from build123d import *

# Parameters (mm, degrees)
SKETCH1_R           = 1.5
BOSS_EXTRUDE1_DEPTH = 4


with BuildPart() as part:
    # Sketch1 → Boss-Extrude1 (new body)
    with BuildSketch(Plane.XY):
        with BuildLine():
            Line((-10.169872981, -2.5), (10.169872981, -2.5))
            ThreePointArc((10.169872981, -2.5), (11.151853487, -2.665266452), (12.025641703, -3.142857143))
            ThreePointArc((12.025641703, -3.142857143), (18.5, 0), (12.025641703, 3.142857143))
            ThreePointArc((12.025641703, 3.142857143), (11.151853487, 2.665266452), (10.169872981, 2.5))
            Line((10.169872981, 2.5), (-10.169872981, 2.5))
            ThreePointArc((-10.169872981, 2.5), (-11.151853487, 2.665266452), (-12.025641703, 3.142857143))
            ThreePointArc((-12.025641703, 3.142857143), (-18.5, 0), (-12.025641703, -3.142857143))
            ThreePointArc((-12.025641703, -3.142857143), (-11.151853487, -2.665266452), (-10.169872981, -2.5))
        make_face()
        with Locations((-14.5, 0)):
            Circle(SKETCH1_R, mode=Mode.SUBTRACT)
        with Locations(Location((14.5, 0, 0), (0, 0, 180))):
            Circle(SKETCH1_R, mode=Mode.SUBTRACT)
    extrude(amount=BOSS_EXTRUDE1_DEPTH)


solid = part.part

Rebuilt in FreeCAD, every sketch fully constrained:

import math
import FreeCAD as App
import Part
import Sketcher

V = App.Vector
Q = App.Units.Quantity

doc = App.newDocument("Part")
body = doc.addObject("PartDesign::Body", "Body")

sketch1 = body.newObject("Sketcher::SketchObject", "Sketch")
sketch1.AttachmentSupport = (doc.getObject("XY_Plane"), [""])
sketch1.MapMode = "FlatFace"
sketch1.addGeometry([
    Part.LineSegment(V(-10.2, -2.5, 0), V(10.2, -2.5, 0)),
    Part.ArcOfCircle(Part.Circle(V(10.2, -5.5, 0), V(0, 0, 1), 3), math.radians(52), math.radians(90)),
    Part.ArcOfCircle(Part.Circle(V(14.5, 0, 0), V(0, 0, 1), 4), math.radians(-128), math.radians(128)),
    Part.ArcOfCircle(Part.Circle(V(10.2, 5.5, 0), V(0, 0, 1), 3), math.radians(-90), math.radians(-52)),
    Part.LineSegment(V(10.2, 2.5, 0), V(-10.2, 2.5, 0)),
    Part.ArcOfCircle(Part.Circle(V(-10.2, 5.5, 0), V(0, 0, 1), 3), math.radians(-128), math.radians(-90)),
    Part.ArcOfCircle(Part.Circle(V(-14.5, 0, 0), V(0, 0, 1), 4), math.radians(52), math.radians(308)),
    Part.ArcOfCircle(Part.Circle(V(-10.2, -5.5, 0), V(0, 0, 1), 3), math.radians(90), math.radians(128)),
    Part.Circle(V(-14.5, 0, 0), V(0, 0, 1), 1.5),
    Part.Circle(V(14.5, 0, 0), V(0, 0, 1), 1.5),
], False)
sketch1.addConstraint([
    Sketcher.Constraint("Tangent", 0, 2, 1, 2),
    Sketcher.Constraint("Tangent", 1, 1, 2, 1),
    Sketcher.Constraint("Tangent", 2, 2, 3, 2),
    Sketcher.Constraint("Tangent", 3, 1, 4, 1),
    Sketcher.Constraint("Tangent", 4, 2, 5, 2),
    Sketcher.Constraint("Tangent", 5, 1, 6, 1),
    Sketcher.Constraint("Tangent", 6, 2, 7, 2),
    Sketcher.Constraint("Tangent", 7, 1, 0, 1),
    Sketcher.Constraint("Horizontal", 0),
    Sketcher.Constraint("Horizontal", 4),
    Sketcher.Constraint("Coincident", 8, 3, 6, 3),
    Sketcher.Constraint("Coincident", 9, 3, 2, 3),
    Sketcher.Constraint("Equal", 1, 3),
    Sketcher.Constraint("Equal", 3, 5),
    Sketcher.Constraint("Equal", 2, 6),
    Sketcher.Constraint("Equal", 5, 7),
    Sketcher.Constraint("Equal", 8, 9),
    Sketcher.Constraint("Symmetric", 1, 3, 5, 3, -1, 1),
    Sketcher.Constraint("Symmetric", 2, 3, 6, 3, -2),
    Sketcher.Constraint("Diameter", 8, Q("3 mm")),
    Sketcher.Constraint("Radius", 1, Q("3 mm")),
    Sketcher.Constraint("Radius", 2, Q("4 mm")),
    Sketcher.Constraint("DistanceY", 1, 3, 3, 3, Q("11 mm")),
    Sketcher.Constraint("DistanceX", 6, 3, 2, 3, Q("29 mm")),
])
pad1 = body.newObject("PartDesign::Pad", "Pad")
pad1.Profile = sketch1
pad1.Length = 4

doc.recompute()
